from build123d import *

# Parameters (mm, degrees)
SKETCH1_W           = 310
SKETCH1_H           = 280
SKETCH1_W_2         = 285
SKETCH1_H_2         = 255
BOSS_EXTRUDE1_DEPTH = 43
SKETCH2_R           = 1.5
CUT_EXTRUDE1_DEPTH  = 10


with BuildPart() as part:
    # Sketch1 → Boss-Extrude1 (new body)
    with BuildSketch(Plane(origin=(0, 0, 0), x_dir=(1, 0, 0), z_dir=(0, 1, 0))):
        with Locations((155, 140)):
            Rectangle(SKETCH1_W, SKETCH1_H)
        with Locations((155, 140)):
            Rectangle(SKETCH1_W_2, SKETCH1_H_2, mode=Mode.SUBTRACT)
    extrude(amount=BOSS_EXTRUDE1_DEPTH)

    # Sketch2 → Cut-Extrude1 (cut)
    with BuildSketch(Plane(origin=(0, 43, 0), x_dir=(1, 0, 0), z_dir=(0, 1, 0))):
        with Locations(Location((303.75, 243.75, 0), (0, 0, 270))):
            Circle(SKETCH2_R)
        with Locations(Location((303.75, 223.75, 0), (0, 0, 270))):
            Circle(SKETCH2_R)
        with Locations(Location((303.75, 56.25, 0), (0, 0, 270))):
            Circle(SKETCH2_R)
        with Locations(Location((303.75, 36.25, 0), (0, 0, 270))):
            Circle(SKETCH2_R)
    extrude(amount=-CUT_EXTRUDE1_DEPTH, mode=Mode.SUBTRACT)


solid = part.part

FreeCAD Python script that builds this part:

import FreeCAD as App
import Part
import Sketcher


def add_polygon(sketch, points):
    """Adds a closed chain of lines whose ends are joined by coincident constraints."""
    first, n = sketch.GeometryCount, len(points)
    for a, b in zip(points, points[1:] + points[:1]):
        sketch.addGeometry(Part.LineSegment(App.Vector(*a, 0), App.Vector(*b, 0)), False)
    for i in range(n):
        sketch.addConstraint(Sketcher.Constraint("Coincident", first + i, 2, first + (i + 1) % n, 1))

doc = App.newDocument("Part")
params = doc.addObject("Spreadsheet::Sheet", "Params")
for row, (alias, value) in enumerate([
    ("sketch1_width", "310 mm"),
    ("sketch1_width2", "285 mm"),
    ("sketch1_height", "280 mm"),
    ("sketch1_height2", "255 mm"),
    ("pad1_length", "43 mm"),
    ("sketch2_diameter", "3 mm"),
    ("pocket1_length", "10 mm"),
], start=1):
    params.set(f"A{row}", alias)
    params.set(f"B{row}", "=" + value)
    params.setAlias(f"B{row}", alias)

body = doc.addObject("PartDesign::Body", "Body")

# Sketch on XZ plane
sketch1 = body.newObject("Sketcher::SketchObject", "Sketch")
sketch1.AttachmentSupport = (doc.getObject("XZ_Plane"), [""])
sketch1.MapMode = "FlatFace"
add_polygon(sketch1, [(0, -280), (0, 0), (310, 0), (310, -280)])  # lines 0-3
add_polygon(sketch1, [(298, -12), (12, -12), (12, -268), (298, -268)])  # lines 4-7
sketch1.addConstraint(Sketcher.Constraint("Vertical", 0))
sketch1.addConstraint(Sketcher.Constraint("Horizontal", 1))
sketch1.addConstraint(Sketcher.Constraint("Vertical", 2))
sketch1.addConstraint(Sketcher.Constraint("Horizontal", 3))
sketch1.addConstraint(Sketcher.Constraint("Horizontal", 4))
sketch1.addConstraint(Sketcher.Constraint("Vertical", 5))
sketch1.addConstraint(Sketcher.Constraint("Horizontal", 6))
sketch1.addConstraint(Sketcher.Constraint("Vertical", 7))
sketch1.addConstraint(Sketcher.Constraint("Coincident", 0, 2, -1, 1))
sketch1.addConstraint(Sketcher.Constraint("DistanceX", 1, 1, 1, 2, 310.0))
sketch1.addConstraint(Sketcher.Constraint("DistanceX", 4, 2, 4, 1, 285.0))
sketch1.addConstraint(Sketcher.Constraint("DistanceY", 0, 1, 0, 2, 280.0))
sketch1.addConstraint(Sketcher.Constraint("DistanceY", 5, 2, 5, 1, 255.0))
sketch1.addConstraint(Sketcher.Constraint("DistanceX", -1, 1, 4, 2, 12.5))
sketch1.addConstraint(Sketcher.Constraint("DistanceY", 4, 2, -1, 1, 12.5))
sketch1.setExpression("Constraints[17]", "Params.sketch1_width")
sketch1.setExpression("Constraints[18]", "Params.sketch1_width2")
sketch1.setExpression("Constraints[19]", "Params.sketch1_height")
sketch1.setExpression("Constraints[20]", "Params.sketch1_height2")
pad1 = body.newObject("PartDesign::Pad", "Pad")
pad1.Profile = sketch1
pad1.setExpression("Length", "Params.pad1_length")
pad1.Reversed = True

# Sketch on XZ plane
sketch2 = body.newObject("Sketcher::SketchObject", "Sketch001")
sketch2.AttachmentSupport = (doc.getObject("XZ_Plane"), [""])
sketch2.MapMode = "FlatFace"
sketch2.AttachmentOffset = App.Placement(App.Vector(0, 0, -43), App.Rotation())
sketch2.addGeometry(Part.Circle(App.Vector(303.8, -243.8, 0), App.Vector(0, 0, 1), 1.5), False)
sketch2.addGeometry(Part.Circle(App.Vector(303.8, -223.8, 0), App.Vector(0, 0, 1), 1.5), False)
sketch2.addGeometry(Part.Circle(App.Vector(303.8, -56.2, 0), App.Vector(0, 0, 1), 1.5), False)
sketch2.addGeometry(Part.Circle(App.Vector(303.8, -36.2, 0), App.Vector(0, 0, 1), 1.5), False)
sketch2.addConstraint(Sketcher.Constraint("Equal", 0, 1))
sketch2.addConstraint(Sketcher.Constraint("Equal", 1, 2))
sketch2.addConstraint(Sketcher.Constraint("Equal", 2, 3))
sketch2.addConstraint(Sketcher.Constraint("Vertical", 0, 3, 1, 3))
sketch2.addConstraint(Sketcher.Constraint("Vertical", 1, 3, 2, 3))
sketch2.addConstraint(Sketcher.Constraint("Vertical", 2, 3, 3, 3))
sketch2.addConstraint(Sketcher.Constraint("Diameter", 0, 3.0))
sketch2.addConstraint(Sketcher.Constraint("DistanceY", 0, 3, 1, 3, 20.0))
sketch2.addConstraint(Sketcher.Constraint("DistanceY", 2, 3, 3, 3, 20.0))
sketch2.addConstraint(Sketcher.Constraint("DistanceY", 1, 3, 2, 3, 167.5))
sketch2.addConstraint(Sketcher.Constraint("DistanceX", -1, 1, 0, 3, 303.75))
sketch2.addConstraint(Sketcher.Constraint("DistanceY", 0, 3, -1, 1, 243.75))
sketch2.setExpression("Constraints[6]", "Params.sketch2_diameter")
pocket1 = body.newObject("PartDesign::Pocket", "Pocket")
pocket1.Profile = sketch2
pocket1.setExpression("Length", "Params.pocket1_length")
pocket1.Reversed = True

doc.recompute()
